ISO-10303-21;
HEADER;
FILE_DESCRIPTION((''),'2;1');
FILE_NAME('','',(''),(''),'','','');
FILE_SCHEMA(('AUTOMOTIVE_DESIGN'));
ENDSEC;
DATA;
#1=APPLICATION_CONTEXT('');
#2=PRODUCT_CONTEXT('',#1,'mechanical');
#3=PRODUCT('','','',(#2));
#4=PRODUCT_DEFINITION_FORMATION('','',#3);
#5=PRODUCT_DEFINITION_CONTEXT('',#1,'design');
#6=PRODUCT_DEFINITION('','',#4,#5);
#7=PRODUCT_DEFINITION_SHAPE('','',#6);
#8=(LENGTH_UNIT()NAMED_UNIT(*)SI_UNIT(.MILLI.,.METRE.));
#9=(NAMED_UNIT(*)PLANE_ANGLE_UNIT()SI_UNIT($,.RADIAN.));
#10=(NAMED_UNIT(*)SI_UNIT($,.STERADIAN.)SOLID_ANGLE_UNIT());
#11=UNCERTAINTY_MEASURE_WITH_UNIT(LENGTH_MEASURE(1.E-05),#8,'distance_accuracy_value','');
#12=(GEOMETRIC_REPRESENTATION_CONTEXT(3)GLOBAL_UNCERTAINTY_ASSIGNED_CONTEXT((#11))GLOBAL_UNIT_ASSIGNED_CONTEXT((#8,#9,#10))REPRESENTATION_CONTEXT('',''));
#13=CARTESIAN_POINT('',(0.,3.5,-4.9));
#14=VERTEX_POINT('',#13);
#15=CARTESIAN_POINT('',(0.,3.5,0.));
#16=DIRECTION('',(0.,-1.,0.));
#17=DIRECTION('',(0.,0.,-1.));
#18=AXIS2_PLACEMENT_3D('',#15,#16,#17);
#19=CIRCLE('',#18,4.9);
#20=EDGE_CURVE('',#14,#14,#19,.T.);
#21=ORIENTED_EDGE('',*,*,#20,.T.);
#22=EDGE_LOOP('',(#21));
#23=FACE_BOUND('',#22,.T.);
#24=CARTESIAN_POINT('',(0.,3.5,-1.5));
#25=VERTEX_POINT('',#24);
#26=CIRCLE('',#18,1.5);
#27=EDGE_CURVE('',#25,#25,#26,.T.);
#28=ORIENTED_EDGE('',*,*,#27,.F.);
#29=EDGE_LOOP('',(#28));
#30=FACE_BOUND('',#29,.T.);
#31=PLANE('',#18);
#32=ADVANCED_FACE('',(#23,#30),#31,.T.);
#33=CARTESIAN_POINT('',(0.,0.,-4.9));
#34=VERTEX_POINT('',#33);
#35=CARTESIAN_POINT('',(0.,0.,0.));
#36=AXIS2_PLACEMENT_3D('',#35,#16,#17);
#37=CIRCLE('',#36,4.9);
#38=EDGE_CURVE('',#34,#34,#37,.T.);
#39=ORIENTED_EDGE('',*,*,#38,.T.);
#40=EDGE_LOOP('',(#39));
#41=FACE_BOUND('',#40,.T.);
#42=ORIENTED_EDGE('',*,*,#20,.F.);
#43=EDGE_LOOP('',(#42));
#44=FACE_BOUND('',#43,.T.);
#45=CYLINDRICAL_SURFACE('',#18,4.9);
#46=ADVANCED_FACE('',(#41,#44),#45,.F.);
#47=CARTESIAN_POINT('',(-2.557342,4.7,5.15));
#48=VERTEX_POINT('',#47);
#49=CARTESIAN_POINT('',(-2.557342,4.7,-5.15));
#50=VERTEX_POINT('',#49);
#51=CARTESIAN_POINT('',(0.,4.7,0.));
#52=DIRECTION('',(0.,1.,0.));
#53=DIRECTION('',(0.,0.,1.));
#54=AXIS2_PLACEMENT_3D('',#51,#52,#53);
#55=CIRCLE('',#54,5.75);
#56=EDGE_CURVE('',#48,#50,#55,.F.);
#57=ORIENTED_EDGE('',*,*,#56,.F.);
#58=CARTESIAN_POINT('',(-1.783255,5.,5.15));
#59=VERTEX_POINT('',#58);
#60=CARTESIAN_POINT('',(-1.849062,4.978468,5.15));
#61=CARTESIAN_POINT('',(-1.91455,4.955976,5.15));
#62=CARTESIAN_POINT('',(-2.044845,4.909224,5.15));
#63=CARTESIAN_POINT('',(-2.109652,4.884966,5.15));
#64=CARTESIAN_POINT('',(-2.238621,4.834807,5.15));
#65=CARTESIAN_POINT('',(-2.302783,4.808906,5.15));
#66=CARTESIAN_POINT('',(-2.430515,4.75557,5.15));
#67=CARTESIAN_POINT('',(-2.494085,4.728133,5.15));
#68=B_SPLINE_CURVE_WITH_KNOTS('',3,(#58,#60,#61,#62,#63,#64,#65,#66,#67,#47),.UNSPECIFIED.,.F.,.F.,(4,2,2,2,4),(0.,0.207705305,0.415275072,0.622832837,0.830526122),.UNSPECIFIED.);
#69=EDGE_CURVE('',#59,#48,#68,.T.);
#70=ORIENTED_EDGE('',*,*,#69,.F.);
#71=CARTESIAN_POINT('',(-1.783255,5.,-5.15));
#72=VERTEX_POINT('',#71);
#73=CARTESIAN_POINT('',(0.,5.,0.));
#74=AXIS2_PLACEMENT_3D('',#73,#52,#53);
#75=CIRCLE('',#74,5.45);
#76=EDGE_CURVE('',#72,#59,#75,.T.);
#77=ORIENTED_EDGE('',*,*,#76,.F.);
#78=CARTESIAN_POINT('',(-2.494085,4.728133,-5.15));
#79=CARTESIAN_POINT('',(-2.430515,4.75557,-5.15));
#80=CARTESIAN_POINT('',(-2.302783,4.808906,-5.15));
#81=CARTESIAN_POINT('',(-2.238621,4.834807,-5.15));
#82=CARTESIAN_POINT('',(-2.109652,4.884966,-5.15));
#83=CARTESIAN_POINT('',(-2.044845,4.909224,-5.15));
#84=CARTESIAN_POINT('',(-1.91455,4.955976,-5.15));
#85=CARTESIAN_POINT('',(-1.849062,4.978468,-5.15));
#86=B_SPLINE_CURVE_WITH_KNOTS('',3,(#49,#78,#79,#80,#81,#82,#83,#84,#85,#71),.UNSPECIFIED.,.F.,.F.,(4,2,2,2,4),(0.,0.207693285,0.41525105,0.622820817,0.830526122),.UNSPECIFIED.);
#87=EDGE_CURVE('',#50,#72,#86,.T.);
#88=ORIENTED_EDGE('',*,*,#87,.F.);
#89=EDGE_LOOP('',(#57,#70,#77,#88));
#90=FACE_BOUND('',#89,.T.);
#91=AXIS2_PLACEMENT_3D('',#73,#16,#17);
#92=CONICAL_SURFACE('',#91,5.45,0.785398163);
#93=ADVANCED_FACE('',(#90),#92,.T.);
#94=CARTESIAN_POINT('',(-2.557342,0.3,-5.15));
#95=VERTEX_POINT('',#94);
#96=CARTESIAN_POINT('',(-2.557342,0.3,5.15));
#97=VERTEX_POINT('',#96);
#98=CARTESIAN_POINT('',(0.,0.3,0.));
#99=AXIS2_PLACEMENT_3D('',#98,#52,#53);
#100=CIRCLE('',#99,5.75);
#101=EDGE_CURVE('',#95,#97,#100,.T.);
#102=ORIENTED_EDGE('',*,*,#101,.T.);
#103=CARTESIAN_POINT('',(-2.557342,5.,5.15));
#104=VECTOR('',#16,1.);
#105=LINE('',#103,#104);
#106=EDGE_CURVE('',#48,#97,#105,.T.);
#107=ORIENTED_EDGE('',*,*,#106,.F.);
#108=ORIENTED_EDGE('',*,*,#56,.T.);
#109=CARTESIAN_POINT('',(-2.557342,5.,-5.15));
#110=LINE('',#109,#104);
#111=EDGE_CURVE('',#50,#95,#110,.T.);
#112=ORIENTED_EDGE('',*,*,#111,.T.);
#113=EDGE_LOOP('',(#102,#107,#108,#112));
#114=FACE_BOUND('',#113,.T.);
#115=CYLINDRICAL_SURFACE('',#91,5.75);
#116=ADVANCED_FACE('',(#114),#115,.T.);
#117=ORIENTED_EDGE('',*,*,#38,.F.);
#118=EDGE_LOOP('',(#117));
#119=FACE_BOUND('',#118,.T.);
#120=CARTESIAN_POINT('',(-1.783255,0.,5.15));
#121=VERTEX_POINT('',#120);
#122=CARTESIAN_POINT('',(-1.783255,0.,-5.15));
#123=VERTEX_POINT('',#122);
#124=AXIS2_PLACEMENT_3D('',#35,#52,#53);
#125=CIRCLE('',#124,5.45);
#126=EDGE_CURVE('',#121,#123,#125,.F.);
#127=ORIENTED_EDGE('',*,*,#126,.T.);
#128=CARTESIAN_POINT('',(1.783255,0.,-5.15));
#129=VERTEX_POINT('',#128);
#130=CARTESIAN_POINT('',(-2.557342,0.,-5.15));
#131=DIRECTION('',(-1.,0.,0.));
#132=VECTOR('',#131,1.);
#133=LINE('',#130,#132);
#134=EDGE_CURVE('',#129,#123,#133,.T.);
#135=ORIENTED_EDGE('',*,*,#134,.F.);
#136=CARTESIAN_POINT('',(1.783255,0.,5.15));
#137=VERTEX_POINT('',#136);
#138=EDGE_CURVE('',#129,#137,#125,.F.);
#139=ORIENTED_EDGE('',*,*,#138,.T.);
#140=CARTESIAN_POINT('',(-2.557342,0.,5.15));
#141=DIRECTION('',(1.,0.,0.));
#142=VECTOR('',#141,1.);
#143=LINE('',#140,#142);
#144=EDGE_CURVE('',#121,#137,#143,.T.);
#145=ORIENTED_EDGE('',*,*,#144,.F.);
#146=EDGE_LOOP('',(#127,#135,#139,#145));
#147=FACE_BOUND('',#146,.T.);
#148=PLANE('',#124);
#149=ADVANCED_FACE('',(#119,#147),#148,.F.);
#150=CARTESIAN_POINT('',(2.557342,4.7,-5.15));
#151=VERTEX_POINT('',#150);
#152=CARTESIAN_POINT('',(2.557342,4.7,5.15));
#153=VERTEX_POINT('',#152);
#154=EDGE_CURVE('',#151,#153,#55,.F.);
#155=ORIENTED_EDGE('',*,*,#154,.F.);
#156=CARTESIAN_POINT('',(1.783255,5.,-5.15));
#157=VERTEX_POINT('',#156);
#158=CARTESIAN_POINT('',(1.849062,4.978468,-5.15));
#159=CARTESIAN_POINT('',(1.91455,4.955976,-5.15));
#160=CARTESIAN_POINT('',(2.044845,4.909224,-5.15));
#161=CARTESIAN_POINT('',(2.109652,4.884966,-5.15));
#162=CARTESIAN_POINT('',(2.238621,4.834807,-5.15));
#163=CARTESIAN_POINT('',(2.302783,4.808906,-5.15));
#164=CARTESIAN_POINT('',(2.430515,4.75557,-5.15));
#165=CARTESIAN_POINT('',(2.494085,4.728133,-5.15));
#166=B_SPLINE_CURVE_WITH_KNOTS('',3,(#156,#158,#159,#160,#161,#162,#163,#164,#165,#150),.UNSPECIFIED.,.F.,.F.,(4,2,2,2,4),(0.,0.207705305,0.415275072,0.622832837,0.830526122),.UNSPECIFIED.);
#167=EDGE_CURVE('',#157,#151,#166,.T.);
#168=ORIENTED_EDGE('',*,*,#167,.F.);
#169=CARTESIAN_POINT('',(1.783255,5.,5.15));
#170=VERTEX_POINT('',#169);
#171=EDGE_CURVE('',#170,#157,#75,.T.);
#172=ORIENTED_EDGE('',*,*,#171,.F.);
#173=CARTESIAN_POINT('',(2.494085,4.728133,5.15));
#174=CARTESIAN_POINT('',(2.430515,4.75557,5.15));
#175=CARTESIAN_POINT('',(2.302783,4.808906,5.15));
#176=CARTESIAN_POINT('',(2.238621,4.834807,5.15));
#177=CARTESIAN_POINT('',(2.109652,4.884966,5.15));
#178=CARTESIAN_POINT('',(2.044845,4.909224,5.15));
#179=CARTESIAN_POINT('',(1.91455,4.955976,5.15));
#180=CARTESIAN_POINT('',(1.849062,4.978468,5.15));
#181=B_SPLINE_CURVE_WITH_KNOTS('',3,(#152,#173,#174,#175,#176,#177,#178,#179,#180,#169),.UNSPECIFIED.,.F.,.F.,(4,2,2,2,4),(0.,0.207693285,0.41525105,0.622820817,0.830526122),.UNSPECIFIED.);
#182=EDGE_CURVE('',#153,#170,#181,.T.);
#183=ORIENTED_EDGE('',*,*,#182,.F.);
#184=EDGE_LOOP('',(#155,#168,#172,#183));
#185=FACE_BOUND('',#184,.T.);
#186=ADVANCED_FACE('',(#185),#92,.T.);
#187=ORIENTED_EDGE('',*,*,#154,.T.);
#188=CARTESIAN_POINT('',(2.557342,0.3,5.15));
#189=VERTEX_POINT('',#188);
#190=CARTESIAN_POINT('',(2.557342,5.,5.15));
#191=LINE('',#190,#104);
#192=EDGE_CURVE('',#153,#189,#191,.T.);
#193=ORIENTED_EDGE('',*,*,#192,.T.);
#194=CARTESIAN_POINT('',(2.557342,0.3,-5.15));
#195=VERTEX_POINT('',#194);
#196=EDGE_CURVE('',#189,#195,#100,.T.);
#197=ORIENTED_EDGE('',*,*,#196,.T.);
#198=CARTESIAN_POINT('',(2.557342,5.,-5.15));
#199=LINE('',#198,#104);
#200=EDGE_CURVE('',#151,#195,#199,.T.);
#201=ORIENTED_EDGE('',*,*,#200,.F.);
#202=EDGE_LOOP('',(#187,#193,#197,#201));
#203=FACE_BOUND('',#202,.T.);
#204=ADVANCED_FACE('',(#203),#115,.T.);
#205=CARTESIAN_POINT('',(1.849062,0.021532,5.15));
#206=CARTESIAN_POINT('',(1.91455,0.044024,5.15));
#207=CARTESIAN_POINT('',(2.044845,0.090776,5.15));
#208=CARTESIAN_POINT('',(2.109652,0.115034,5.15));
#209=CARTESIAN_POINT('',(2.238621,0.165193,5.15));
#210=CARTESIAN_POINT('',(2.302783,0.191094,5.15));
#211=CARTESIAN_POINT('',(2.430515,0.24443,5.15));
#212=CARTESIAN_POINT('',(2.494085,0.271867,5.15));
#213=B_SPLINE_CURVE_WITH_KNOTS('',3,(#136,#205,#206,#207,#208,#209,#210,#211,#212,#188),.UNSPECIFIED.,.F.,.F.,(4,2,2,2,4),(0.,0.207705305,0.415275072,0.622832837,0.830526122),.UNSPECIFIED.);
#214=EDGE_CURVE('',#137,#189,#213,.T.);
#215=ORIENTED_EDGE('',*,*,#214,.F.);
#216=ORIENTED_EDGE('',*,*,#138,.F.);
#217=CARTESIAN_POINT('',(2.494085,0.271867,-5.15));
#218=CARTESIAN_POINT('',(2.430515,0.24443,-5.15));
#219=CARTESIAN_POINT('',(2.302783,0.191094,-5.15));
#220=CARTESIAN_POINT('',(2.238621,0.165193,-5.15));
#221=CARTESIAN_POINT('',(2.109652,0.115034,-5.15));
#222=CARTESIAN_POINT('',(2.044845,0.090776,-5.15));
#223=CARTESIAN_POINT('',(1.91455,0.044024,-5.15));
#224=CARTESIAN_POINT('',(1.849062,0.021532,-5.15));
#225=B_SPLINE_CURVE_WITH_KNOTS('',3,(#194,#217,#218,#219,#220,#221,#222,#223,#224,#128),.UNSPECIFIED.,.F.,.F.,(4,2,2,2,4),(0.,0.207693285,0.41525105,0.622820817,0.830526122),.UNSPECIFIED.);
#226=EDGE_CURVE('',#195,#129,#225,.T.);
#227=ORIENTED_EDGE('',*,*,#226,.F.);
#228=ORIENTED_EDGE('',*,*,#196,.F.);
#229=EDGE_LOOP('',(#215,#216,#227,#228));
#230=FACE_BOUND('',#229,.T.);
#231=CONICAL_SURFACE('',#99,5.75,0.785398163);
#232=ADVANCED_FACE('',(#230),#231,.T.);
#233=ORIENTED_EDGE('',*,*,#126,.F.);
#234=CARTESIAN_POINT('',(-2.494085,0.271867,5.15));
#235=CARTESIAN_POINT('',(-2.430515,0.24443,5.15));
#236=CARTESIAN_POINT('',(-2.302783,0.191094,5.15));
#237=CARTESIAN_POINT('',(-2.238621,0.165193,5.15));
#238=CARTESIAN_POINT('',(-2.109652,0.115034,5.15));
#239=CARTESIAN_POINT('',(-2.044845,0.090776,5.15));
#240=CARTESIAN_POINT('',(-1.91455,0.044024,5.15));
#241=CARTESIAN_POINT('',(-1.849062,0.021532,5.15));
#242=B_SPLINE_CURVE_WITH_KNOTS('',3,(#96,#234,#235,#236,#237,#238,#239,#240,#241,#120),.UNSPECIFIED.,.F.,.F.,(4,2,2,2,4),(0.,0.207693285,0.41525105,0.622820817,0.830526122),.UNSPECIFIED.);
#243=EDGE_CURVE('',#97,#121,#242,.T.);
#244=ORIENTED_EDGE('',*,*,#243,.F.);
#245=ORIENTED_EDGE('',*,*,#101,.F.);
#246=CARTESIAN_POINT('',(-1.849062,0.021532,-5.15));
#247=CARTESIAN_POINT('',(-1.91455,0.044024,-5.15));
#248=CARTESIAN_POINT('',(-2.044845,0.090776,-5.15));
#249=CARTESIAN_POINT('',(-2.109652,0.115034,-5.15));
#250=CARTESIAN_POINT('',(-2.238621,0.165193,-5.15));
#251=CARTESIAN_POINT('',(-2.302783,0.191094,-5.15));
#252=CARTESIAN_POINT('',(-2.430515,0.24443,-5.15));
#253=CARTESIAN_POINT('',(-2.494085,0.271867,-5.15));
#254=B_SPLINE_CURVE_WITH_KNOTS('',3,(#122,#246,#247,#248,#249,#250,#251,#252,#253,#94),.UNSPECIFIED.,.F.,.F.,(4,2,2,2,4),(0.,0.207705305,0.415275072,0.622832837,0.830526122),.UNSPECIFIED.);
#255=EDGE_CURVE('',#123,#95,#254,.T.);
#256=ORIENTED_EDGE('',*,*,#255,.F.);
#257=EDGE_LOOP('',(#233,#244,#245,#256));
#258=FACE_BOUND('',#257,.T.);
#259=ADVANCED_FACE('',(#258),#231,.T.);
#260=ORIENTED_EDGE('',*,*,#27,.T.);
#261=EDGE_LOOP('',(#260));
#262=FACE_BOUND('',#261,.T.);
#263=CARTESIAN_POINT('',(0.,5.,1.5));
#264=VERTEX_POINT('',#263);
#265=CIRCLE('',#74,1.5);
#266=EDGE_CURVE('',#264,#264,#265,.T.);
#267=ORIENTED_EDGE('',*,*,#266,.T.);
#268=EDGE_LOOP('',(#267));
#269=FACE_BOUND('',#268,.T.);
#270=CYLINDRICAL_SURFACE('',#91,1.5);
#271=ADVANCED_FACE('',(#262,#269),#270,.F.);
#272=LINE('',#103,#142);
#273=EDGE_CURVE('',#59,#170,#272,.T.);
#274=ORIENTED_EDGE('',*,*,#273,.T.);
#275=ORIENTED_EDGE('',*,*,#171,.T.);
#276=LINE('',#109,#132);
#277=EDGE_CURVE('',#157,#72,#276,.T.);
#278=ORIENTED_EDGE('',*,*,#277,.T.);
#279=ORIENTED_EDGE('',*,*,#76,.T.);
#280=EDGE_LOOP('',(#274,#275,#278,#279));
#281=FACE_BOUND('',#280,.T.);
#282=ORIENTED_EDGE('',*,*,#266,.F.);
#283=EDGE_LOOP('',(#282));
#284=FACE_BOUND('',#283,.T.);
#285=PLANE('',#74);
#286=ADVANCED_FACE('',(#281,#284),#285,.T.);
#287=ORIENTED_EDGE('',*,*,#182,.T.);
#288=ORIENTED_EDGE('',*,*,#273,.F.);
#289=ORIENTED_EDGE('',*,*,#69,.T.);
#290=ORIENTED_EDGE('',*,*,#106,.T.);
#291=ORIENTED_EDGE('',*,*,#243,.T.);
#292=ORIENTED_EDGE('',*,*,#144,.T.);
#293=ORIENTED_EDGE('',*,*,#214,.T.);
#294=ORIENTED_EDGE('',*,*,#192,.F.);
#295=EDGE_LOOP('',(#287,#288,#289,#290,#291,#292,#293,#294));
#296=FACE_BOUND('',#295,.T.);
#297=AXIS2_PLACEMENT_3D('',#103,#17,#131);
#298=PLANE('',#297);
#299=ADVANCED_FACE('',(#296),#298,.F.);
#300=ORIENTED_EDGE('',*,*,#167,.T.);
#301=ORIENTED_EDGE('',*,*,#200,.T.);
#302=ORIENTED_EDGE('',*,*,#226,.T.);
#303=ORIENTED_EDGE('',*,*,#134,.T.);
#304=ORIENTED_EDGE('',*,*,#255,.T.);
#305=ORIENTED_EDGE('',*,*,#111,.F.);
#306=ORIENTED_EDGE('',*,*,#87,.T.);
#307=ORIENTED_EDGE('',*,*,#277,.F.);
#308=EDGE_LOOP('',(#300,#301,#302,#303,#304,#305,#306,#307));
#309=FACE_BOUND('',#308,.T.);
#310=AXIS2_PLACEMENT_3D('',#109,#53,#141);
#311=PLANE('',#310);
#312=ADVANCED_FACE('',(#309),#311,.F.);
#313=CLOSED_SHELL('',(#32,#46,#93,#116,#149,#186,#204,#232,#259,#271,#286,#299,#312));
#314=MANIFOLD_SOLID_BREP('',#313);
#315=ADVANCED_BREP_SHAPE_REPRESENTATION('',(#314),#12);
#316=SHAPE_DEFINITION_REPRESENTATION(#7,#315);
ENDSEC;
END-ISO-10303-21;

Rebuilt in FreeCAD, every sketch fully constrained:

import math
import FreeCAD as App
import Part
import Sketcher


def edges_at(feature, points):
    """Names of the edges that pass closest to the given points."""
    edges = feature.Shape.Edges
    near = lambda p: min(range(len(edges)), key=lambda i: edges[i].distToShape(Part.Vertex(*p))[0])
    return sorted({f"Edge{near(p) + 1}" for p in points})

doc = App.newDocument("Part")
body = doc.addObject("PartDesign::Body", "Body")

# Sketch on XZ plane
sketch1 = doc.addObject("Sketcher::SketchObject", "Sketch")
body.addObject(sketch1)
sketch1.AttachmentSupport = (doc.XZ_Plane, [""])
sketch1.MapMode = "FlatFace"
sketch1.addGeometry(Part.LineSegment(App.Vector(-2.6, 5.2, 0), App.Vector(2.6, 5.2, 0)), False)
sketch1.addGeometry(Part.ArcOfCircle(Part.Circle(App.Vector(0, 0, 0), App.Vector(0, 0, 1), 5.8), math.radians(-64), math.radians(64)), False)
sketch1.addGeometry(Part.LineSegment(App.Vector(2.6, -5.2, 0), App.Vector(-2.6, -5.2, 0)), False)
sketch1.addGeometry(Part.ArcOfCircle(Part.Circle(App.Vector(0, 0, 0), App.Vector(0, 0, 1), 5.8), math.radians(116), math.radians(244)), False)
sketch1.addGeometry(Part.Circle(App.Vector(0, 0, 0), App.Vector(0, 0, 1), 1.5), False)
sketch1.addConstraint(Sketcher.Constraint("Coincident", 0, 2, 1, 2))
sketch1.addConstraint(Sketcher.Constraint("Coincident", 1, 1, 2, 1))
sketch1.addConstraint(Sketcher.Constraint("Coincident", 2, 2, 3, 2))
sketch1.addConstraint(Sketcher.Constraint("Coincident", 3, 1, 0, 1))
sketch1.addConstraint(Sketcher.Constraint("Horizontal", 0))
sketch1.addConstraint(Sketcher.Constraint("Horizontal", 2))
sketch1.addConstraint(Sketcher.Constraint("Coincident", 1, 3, -1, 1))
sketch1.addConstraint(Sketcher.Constraint("Coincident", 3, 3, -1, 1))
sketch1.addConstraint(Sketcher.Constraint("Coincident", 4, 3, -1, 1))
sketch1.addConstraint(Sketcher.Constraint("Equal", 1, 3))
sketch1.addConstraint(Sketcher.Constraint("Vertical", 0, 2, 1, 1))
sketch1.addConstraint(Sketcher.Constraint("Diameter", 4, 3.0))
sketch1.addConstraint(Sketcher.Constraint("Radius", 1, 5.75))
sketch1.addConstraint(Sketcher.Constraint("DistanceY", 1, 1, 0, 2, 10.3))
pad1 = doc.addObject("PartDesign::Pad", "Pad")
body.addObject(pad1)
pad1.Profile = sketch1
pad1.Length = 5
pad1.Reversed = True

# Sketch on XZ plane
sketch2 = doc.addObject("Sketcher::SketchObject", "Sketch001")
body.addObject(sketch2)
sketch2.AttachmentSupport = (doc.XZ_Plane, [""])
sketch2.MapMode = "FlatFace"
sketch2.addGeometry(Part.Circle(App.Vector(0, 0, 0), App.Vector(0, 0, 1), 4.9), False)
sketch2.addConstraint(Sketcher.Constraint("Coincident", 0, 3, -1, 1))
sketch2.addConstraint(Sketcher.Constraint("Diameter", 0, 9.8))
pocket1 = doc.addObject("PartDesign::Pocket", "Pocket")
body.addObject(pocket1)
pocket1.Profile = sketch2
pocket1.Length = 3.5
doc.recompute()

chamfer = doc.addObject("PartDesign::Chamfer", "Chamfer")
body.addObject(chamfer)
chamfer.Base = (pocket1, edges_at(pocket1, [
    (5.75, 5, 0),
    (-5.75, 5, 0),
    (5.75, 0, 0),
    (-5.75, 0, 0),
]))
chamfer.Size = 0.3

doc.recompute()
